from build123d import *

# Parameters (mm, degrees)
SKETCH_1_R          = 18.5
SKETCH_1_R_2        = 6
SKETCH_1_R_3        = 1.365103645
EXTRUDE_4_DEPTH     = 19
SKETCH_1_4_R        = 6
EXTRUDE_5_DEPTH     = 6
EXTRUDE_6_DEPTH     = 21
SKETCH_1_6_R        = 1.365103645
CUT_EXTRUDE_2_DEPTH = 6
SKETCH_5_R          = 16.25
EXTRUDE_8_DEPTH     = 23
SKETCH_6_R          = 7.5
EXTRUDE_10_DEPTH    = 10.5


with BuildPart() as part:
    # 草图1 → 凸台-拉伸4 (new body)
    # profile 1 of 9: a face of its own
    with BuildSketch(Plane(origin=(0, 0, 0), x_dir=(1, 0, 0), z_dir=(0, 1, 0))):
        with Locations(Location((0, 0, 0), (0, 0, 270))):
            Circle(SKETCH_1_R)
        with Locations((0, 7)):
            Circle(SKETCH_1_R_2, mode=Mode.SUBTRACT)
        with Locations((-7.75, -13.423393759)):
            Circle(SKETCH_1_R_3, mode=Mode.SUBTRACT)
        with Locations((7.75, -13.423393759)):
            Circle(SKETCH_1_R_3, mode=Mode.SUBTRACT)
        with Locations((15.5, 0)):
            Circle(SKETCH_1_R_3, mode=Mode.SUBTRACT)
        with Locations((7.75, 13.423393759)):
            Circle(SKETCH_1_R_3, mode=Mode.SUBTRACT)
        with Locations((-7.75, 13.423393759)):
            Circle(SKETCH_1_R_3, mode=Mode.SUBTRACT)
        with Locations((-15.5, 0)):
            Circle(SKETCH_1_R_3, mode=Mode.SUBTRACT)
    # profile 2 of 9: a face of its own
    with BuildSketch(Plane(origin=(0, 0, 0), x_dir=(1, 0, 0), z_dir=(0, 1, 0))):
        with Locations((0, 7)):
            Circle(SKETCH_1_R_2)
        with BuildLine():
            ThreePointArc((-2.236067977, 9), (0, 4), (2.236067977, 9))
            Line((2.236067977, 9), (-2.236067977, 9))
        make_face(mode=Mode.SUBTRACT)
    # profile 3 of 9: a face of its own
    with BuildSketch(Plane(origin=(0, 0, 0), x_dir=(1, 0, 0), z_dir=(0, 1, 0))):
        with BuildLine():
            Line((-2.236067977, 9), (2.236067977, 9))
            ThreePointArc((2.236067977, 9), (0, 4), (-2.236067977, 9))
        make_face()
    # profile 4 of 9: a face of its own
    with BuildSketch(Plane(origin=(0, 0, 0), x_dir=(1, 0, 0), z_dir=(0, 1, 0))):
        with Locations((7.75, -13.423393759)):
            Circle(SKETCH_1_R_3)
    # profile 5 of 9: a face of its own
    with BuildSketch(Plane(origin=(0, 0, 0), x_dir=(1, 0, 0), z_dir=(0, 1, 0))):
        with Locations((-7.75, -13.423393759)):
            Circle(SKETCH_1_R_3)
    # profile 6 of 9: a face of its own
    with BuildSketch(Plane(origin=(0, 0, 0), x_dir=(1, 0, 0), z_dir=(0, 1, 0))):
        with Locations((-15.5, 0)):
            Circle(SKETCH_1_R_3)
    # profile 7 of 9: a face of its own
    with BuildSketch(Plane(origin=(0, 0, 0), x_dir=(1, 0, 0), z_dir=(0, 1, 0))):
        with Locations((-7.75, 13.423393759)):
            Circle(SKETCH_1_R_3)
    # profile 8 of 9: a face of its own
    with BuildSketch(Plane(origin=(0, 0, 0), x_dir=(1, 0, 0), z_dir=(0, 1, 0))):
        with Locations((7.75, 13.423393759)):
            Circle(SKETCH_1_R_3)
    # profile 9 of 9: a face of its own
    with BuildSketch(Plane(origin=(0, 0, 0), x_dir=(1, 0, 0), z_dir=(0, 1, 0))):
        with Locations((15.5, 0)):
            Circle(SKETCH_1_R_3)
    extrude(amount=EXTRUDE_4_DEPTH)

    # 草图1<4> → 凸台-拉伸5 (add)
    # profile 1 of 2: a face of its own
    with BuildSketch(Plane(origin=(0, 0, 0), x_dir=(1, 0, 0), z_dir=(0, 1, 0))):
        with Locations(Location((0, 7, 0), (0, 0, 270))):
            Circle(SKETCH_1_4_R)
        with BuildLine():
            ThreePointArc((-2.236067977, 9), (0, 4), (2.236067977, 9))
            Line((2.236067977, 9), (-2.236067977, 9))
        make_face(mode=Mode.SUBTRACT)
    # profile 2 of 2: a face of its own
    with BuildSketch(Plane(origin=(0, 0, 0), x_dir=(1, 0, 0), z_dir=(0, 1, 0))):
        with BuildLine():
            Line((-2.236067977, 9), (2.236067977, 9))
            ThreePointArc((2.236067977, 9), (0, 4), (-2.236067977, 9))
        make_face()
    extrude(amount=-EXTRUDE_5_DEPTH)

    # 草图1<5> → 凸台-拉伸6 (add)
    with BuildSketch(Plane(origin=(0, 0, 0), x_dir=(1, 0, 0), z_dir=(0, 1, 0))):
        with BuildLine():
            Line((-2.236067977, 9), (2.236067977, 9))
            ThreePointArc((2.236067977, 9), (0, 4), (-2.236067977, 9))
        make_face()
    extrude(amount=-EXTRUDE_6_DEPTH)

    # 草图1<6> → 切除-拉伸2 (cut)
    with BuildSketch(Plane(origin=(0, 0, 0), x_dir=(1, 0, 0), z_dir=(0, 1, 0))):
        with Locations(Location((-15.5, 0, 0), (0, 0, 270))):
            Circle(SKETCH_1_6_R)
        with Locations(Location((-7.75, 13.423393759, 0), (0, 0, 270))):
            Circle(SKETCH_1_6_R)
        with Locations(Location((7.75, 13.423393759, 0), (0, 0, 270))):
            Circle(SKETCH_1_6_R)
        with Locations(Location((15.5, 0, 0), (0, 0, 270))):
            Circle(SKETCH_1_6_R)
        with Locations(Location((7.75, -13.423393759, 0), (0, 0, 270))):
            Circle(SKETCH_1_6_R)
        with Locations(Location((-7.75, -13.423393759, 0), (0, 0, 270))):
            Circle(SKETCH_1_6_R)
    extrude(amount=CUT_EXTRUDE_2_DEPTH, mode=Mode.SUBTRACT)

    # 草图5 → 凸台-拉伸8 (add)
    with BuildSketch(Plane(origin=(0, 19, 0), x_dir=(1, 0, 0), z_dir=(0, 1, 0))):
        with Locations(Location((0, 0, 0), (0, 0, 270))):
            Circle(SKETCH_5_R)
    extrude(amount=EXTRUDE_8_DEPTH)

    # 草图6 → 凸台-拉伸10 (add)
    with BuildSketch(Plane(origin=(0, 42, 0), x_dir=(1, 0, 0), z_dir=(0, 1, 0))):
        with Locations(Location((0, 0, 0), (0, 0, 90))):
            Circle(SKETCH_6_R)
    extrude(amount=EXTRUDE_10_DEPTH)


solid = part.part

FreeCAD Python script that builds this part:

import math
import FreeCAD as App
import Part
import Sketcher
from FreeCAD import Vector

doc = App.newDocument("Part")
body = doc.addObject("PartDesign::Body", "Body")

# Sketch on XZ plane
sketch1 = body.newObject("Sketcher::SketchObject", "Sketch")
sketch1.AttachmentSupport = (doc.getObject("XZ_Plane"), [""])
sketch1.MapMode = "FlatFace"
sketch1.addGeometry(Part.Circle(Vector(0, 0, 0), Vector(0, 0, 1), 18), False)
sketch1.addConstraint(Sketcher.Constraint("Coincident", 0, 3, -1, 1))
sketch1.addConstraint(Sketcher.Constraint("Diameter", 0, 37.0))
pad1 = body.newObject("PartDesign::Pad", "Pad")
pad1.Profile = sketch1
pad1.Length = 19
pad1.Reversed = True

# Sketch on XZ plane
sketch2 = body.newObject("Sketcher::SketchObject", "Sketch001")
sketch2.AttachmentSupport = (doc.getObject("XZ_Plane"), [""])
sketch2.MapMode = "FlatFace"
sketch2.addGeometry(Part.Circle(Vector(0, -7, 0), Vector(0, 0, 1), 6), False)
sketch2.addConstraint(Sketcher.Constraint("PointOnObject", 0, 3, -2))
sketch2.addConstraint(Sketcher.Constraint("Diameter", 0, 12.0))
sketch2.addConstraint(Sketcher.Constraint("DistanceY", 0, 3, -1, 1, 7.0))
pad2 = body.newObject("PartDesign::Pad", "Pad001")
pad2.Profile = sketch2
pad2.Length = 6

# Sketch on XZ plane
sketch3 = body.newObject("Sketcher::SketchObject", "Sketch002")
sketch3.AttachmentSupport = (doc.getObject("XZ_Plane"), [""])
sketch3.MapMode = "FlatFace"
sketch3.addGeometry(Part.LineSegment(Vector(2.2, -9, 0), Vector(-2.2, -9, 0)), False)
sketch3.addGeometry(Part.ArcOfCircle(Part.Circle(Vector(0, -7, 0), Vector(0, 0, 1), 3), math.radians(-42), math.radians(222)), False)
sketch3.addConstraint(Sketcher.Constraint("Coincident", 0, 1, 1, 1))
sketch3.addConstraint(Sketcher.Constraint("Coincident", 1, 2, 0, 2))
sketch3.addConstraint(Sketcher.Constraint("Horizontal", 0))
sketch3.addConstraint(Sketcher.Constraint("PointOnObject", 1, 3, -2))
sketch3.addConstraint(Sketcher.Constraint("Radius", 1, 3.0))
sketch3.addConstraint(Sketcher.Constraint("DistanceY", 1, 3, -1, 1, 7.0))
sketch3.addConstraint(Sketcher.Constraint("DistanceY", 0, 1, -1, 1, 9.0))
pad3 = body.newObject("PartDesign::Pad", "Pad002")
pad3.Profile = sketch3
pad3.Length = 21

# Sketch on XZ plane
sketch4 = body.newObject("Sketcher::SketchObject", "Sketch003")
sketch4.AttachmentSupport = (doc.getObject("XZ_Plane"), [""])
sketch4.MapMode = "FlatFace"
sketch4.addGeometry(Part.Circle(Vector(-15.5, 0, 0), Vector(0, 0, 1), 1.4), False)
sketch4.addGeometry(Part.Circle(Vector(-7.8, -13.4, 0), Vector(0, 0, 1), 1.4), False)
sketch4.addGeometry(Part.Circle(Vector(7.8, -13.4, 0), Vector(0, 0, 1), 1.4), False)
sketch4.addGeometry(Part.Circle(Vector(15.5, 0, 0), Vector(0, 0, 1), 1.4), False)
sketch4.addGeometry(Part.Circle(Vector(7.8, 13.4, 0), Vector(0, 0, 1), 1.4), False)
sketch4.addGeometry(Part.Circle(Vector(-7.8, 13.4, 0), Vector(0, 0, 1), 1.4), False)
sketch4.addConstraint(Sketcher.Constraint("Equal", 0, 1))
sketch4.addConstraint(Sketcher.Constraint("Equal", 1, 2))
sketch4.addConstraint(Sketcher.Constraint("Equal", 2, 3))
sketch4.addConstraint(Sketcher.Constraint("Equal", 3, 4))
sketch4.addConstraint(Sketcher.Constraint("Equal", 4, 5))
sketch4.addConstraint(Sketcher.Constraint("Symmetric", 0, 3, 3, 3, -1, 1))
sketch4.addConstraint(Sketcher.Constraint("Symmetric", 1, 3, 4, 3, -1, 1))
sketch4.addConstraint(Sketcher.Constraint("Symmetric", 2, 3, 5, 3, -1, 1))
sketch4.addConstraint(Sketcher.Constraint("Symmetric", 1, 3, 2, 3, -2))
sketch4.addConstraint(Sketcher.Constraint("PointOnObject", 0, 3, -1))
sketch4.addConstraint(Sketcher.Constraint("DistanceX", 0, 3, 3, 3, 31.0))
sketch4.addConstraint(Sketcher.Constraint("DistanceX", 1, 3, 2, 3, 15.5))
sketch4.addConstraint(Sketcher.Constraint("Diameter", 0, 2.730207))
sketch4.addConstraint(Sketcher.Constraint("DistanceY", 1, 3, -1, 1, 13.423394))
pocket1 = body.newObject("PartDesign::Pocket", "Pocket")
pocket1.Profile = sketch4
pocket1.Length = 6

# Sketch on XZ plane
sketch5 = body.newObject("Sketcher::SketchObject", "Sketch004")
sketch5.AttachmentSupport = (doc.getObject("XZ_Plane"), [""])
sketch5.MapMode = "FlatFace"
sketch5.AttachmentOffset = App.Placement(Vector(0, 0, -19), App.Rotation())
sketch5.addGeometry(Part.Circle(Vector(0, 0, 0), Vector(0, 0, 1), 16), False)
sketch5.addConstraint(Sketcher.Constraint("Coincident", 0, 3, -1, 1))
sketch5.addConstraint(Sketcher.Constraint("Diameter", 0, 32.5))
pad4 = body.newObject("PartDesign::Pad", "Pad003")
pad4.Profile = sketch5
pad4.Length = 23
pad4.Reversed = True

# Sketch on XZ plane
sketch6 = body.newObject("Sketcher::SketchObject", "Sketch005")
sketch6.AttachmentSupport = (doc.getObject("XZ_Plane"), [""])
sketch6.MapMode = "FlatFace"
sketch6.AttachmentOffset = App.Placement(Vector(0, 0, -42), App.Rotation())
sketch6.addGeometry(Part.Circle(Vector(0, 0, 0), Vector(0, 0, 1), 8), False)
sketch6.addConstraint(Sketcher.Constraint("Coincident", 0, 3, -1, 1))
sketch6.addConstraint(Sketcher.Constraint("Diameter", 0, 15.0))
pad5 = body.newObject("PartDesign::Pad", "Pad004")
pad5.Profile = sketch6
pad5.Length = 10.5
pad5.Reversed = True

doc.recompute()
